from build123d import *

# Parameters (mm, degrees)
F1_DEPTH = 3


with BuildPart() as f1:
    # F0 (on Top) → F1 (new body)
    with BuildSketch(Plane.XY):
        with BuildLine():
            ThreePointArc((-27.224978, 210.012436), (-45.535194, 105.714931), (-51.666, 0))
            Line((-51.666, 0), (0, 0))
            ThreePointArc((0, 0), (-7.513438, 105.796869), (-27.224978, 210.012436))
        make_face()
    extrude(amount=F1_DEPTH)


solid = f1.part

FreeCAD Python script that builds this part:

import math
import FreeCAD as App
import Part
import Sketcher

V = App.Vector
Q = App.Units.Quantity

doc = App.newDocument("Part")
body = doc.addObject("PartDesign::Body", "Body")

sketch1 = body.newObject("Sketcher::SketchObject", "Sketch")
sketch1.AttachmentSupport = (doc.getObject("XY_Plane"), [""])
sketch1.MapMode = "FlatFace"
sketch1.addGeometry([
    Part.ArcOfCircle(Part.Circle(V(863, 0, 0), V(0, 0, 1), 914), math.radians(166.72), math.radians(180)),
    Part.LineSegment(V(-52, 0, 0), V(0, 0, 0)),
    Part.ArcOfCircle(Part.Circle(V(-914, -12, 0), V(0, 0, 1), 915), math.radians(0.74), math.radians(14.03)),
], False)
sketch1.addConstraint([
    Sketcher.Constraint("Coincident", 0, 2, 1, 1),
    Sketcher.Constraint("Coincident", 1, 2, 2, 1),
    Sketcher.Constraint("Coincident", 2, 2, 0, 1),
    Sketcher.Constraint("Horizontal", 1),
    Sketcher.Constraint("Coincident", 1, 2, -1, 1),
    Sketcher.Constraint("PointOnObject", 0, 3, -1),
    Sketcher.Constraint("DistanceX", 1, 1, 1, 2, Q("51.666 mm")),
    Sketcher.Constraint("Radius", 2, Q("914.575022 mm")),
    Sketcher.Constraint("Radius", 0, Q("914.499142 mm")),
    Sketcher.Constraint("DistanceX", 2, 3, -1, 1, Q("914.49915 mm")),
])
pad1 = body.newObject("PartDesign::Pad", "Pad")
pad1.Profile = sketch1
pad1.Length = 3

doc.recompute()
